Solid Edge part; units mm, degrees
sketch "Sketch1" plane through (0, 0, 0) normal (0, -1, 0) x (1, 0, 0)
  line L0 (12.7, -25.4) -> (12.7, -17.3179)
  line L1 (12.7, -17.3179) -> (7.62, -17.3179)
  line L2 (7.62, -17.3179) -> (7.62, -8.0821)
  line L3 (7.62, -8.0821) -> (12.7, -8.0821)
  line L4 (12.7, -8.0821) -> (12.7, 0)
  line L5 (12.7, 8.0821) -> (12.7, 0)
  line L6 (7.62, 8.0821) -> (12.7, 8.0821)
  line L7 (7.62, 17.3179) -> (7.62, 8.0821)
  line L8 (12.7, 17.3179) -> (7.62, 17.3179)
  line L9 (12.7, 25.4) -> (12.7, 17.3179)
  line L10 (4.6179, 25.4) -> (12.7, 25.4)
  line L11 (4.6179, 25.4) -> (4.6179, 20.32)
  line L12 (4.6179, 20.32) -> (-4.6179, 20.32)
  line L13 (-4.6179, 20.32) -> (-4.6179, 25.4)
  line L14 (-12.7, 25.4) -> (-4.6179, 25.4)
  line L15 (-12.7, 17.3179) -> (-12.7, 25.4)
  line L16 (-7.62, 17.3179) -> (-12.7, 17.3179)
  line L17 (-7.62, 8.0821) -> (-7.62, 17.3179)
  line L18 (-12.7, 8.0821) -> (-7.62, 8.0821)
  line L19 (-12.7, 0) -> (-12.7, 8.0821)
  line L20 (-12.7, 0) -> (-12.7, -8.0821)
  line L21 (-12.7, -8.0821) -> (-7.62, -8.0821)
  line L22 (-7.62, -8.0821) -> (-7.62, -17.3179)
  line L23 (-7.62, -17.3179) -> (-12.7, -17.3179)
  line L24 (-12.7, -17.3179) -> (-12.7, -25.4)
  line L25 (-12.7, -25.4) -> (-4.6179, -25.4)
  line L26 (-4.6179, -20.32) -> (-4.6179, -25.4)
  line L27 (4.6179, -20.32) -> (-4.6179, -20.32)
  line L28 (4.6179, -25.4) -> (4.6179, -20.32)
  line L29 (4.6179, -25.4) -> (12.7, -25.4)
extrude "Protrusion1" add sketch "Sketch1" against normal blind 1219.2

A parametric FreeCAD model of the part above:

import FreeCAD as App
import Part
import Sketcher

V = App.Vector
Q = App.Units.Quantity


def add_polygon(sketch, points):
    """Adds a closed chain of lines whose ends are joined by coincident constraints."""
    first, n = sketch.GeometryCount, len(points)
    for a, b in zip(points, points[1:] + points[:1]):
        sketch.addGeometry(Part.LineSegment(App.Vector(*a, 0), App.Vector(*b, 0)), False)
    for i in range(n):
        sketch.addConstraint(Sketcher.Constraint("Coincident", first + i, 2, first + (i + 1) % n, 1))

doc = App.newDocument("Part")
body = doc.addObject("PartDesign::Body", "Body")

# Sketch on XZ plane
sketch1 = doc.addObject("Sketcher::SketchObject", "Sketch")
body.addObject(sketch1)
sketch1.AttachmentSupport = (doc.XZ_Plane, [""])
sketch1.MapMode = "FlatFace"
add_polygon(sketch1, [(5, -25), (13, -25), (13, -17), (8, -17), (8, -8), (13, -8), (13, 8), (8, 8), (8, 17), (13, 17), (13, 25), (5, 25), (5, 20), (-5, 20), (-5, 25), (-13, 25), (-13, 17), (-8, 17), (-8, 8), (-13, 8), (-13, -8), (-8, -8), (-8, -17), (-13, -17), (-13, -25), (-5, -25), (-5, -20), (5, -20)])  # lines 0-27
sketch1.addConstraint([
    Sketcher.Constraint("Horizontal", 0),
    Sketcher.Constraint("Vertical", 1),
    Sketcher.Constraint("Horizontal", 2),
    Sketcher.Constraint("Vertical", 3),
    Sketcher.Constraint("Horizontal", 4),
    Sketcher.Constraint("Vertical", 5),
    Sketcher.Constraint("Horizontal", 6),
    Sketcher.Constraint("Vertical", 7),
    Sketcher.Constraint("Horizontal", 8),
    Sketcher.Constraint("Vertical", 9),
    Sketcher.Constraint("Horizontal", 10),
    Sketcher.Constraint("Vertical", 11),
    Sketcher.Constraint("Horizontal", 12),
    Sketcher.Constraint("Vertical", 13),
    Sketcher.Constraint("Horizontal", 14),
    Sketcher.Constraint("Vertical", 15),
    Sketcher.Constraint("Horizontal", 16),
    Sketcher.Constraint("Vertical", 17),
    Sketcher.Constraint("Horizontal", 18),
    Sketcher.Constraint("Vertical", 19),
    Sketcher.Constraint("Horizontal", 20),
    Sketcher.Constraint("Vertical", 21),
    Sketcher.Constraint("Horizontal", 22),
    Sketcher.Constraint("Vertical", 23),
    Sketcher.Constraint("Horizontal", 24),
    Sketcher.Constraint("Vertical", 25),
    Sketcher.Constraint("Horizontal", 26),
    Sketcher.Constraint("Vertical", 27),
    Sketcher.Constraint("Symmetric", 0, 2, 14, 2, -1, 1),
    Sketcher.Constraint("Symmetric", 2, 2, 16, 2, -1, 1),
    Sketcher.Constraint("Symmetric", 4, 2, 18, 2, -1, 1),
    Sketcher.Constraint("Symmetric", 6, 2, 20, 2, -1, 1),
    Sketcher.Constraint("Symmetric", 8, 2, 22, 2, -1, 1),
    Sketcher.Constraint("Symmetric", 10, 2, 24, 2, -1, 1),
    Sketcher.Constraint("Symmetric", 12, 2, 26, 2, -1, 1),
    Sketcher.Constraint("Symmetric", 10, 2, 13, 2, -2),
    Sketcher.Constraint("Symmetric", 8, 2, 15, 2, -2),
    Sketcher.Constraint("Symmetric", 6, 2, 17, 2, -2),
    Sketcher.Constraint("Vertical", 1, 2, 4, 2),
    Sketcher.Constraint("Equal", 24, 1),
    Sketcher.Constraint("Equal", 26, 3),
    Sketcher.Constraint("Equal", 22, 11),
    Sketcher.Constraint("DistanceX", 2, 2, 2, 1, Q("0.2 in")),
    Sketcher.Constraint("DistanceY", 0, 2, -1, 1, Q("1 in")),
    Sketcher.Constraint("DistanceY", 1, 2, 5, 2, Q("1 in")),
    Sketcher.Constraint("DistanceX", 0, 1, 0, 2, Q("0.3182 in")),
])
pad1 = doc.addObject("PartDesign::Pad", "Pad")
body.addObject(pad1)
pad1.Profile = sketch1
pad1.Length = Q("48 in")
pad1.Reversed = True

doc.recompute()
